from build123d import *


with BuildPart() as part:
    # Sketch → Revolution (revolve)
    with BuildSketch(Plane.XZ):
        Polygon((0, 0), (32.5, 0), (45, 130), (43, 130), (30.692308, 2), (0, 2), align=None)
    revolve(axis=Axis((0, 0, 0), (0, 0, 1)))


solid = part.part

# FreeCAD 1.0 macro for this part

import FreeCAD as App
import Part
import Sketcher
from FreeCAD import Vector


def add_polygon(sketch, points):
    """Adds a closed chain of lines whose ends are joined by coincident constraints."""
    first, n = sketch.GeometryCount, len(points)
    for a, b in zip(points, points[1:] + points[:1]):
        sketch.addGeometry(Part.LineSegment(App.Vector(*a, 0), App.Vector(*b, 0)), False)
    for i in range(n):
        sketch.addConstraint(Sketcher.Constraint("Coincident", first + i, 2, first + (i + 1) % n, 1))

doc = App.newDocument("Part")
body = doc.addObject("PartDesign::Body", "Body")

sketch1 = doc.addObject("Sketcher::SketchObject", "Sketch")
body.addObject(sketch1)
sketch1.AttachmentSupport = (doc.XZ_Plane, [""])
sketch1.MapMode = "FlatFace"
add_polygon(sketch1, [(0, 0), (32.5, 0), (45, 130), (43, 130), (30.692308, 2), (0, 2)])
sketch1.addConstraint([
    Sketcher.Constraint("Horizontal", 0),
    Sketcher.Constraint("Horizontal", 2),
    Sketcher.Constraint("Horizontal", 4),
    Sketcher.Constraint("Vertical", 5),
    Sketcher.Constraint("Coincident", 5, 2, -1, 1),
    Sketcher.Constraint("Parallel", 1, 3),
    Sketcher.Constraint("Equal", 2, 5),
    Sketcher.Constraint("DistanceX", 2, 2, 2, 1, 2.0),
    Sketcher.Constraint("DistanceX", 0, 1, 0, 2, 32.5),
    Sketcher.Constraint("DistanceX", -1, 1, 1, 2, 45.0),
    Sketcher.Constraint("DistanceY", -1, 1, 1, 2, 130.0),
])
revolution = doc.addObject("PartDesign::Revolution", "Revolution")
body.addObject(revolution)
revolution.Profile = sketch1
revolution.ReferenceAxis = (sketch1, ["V_Axis"])
revolution.Angle = 360

doc.recompute()
